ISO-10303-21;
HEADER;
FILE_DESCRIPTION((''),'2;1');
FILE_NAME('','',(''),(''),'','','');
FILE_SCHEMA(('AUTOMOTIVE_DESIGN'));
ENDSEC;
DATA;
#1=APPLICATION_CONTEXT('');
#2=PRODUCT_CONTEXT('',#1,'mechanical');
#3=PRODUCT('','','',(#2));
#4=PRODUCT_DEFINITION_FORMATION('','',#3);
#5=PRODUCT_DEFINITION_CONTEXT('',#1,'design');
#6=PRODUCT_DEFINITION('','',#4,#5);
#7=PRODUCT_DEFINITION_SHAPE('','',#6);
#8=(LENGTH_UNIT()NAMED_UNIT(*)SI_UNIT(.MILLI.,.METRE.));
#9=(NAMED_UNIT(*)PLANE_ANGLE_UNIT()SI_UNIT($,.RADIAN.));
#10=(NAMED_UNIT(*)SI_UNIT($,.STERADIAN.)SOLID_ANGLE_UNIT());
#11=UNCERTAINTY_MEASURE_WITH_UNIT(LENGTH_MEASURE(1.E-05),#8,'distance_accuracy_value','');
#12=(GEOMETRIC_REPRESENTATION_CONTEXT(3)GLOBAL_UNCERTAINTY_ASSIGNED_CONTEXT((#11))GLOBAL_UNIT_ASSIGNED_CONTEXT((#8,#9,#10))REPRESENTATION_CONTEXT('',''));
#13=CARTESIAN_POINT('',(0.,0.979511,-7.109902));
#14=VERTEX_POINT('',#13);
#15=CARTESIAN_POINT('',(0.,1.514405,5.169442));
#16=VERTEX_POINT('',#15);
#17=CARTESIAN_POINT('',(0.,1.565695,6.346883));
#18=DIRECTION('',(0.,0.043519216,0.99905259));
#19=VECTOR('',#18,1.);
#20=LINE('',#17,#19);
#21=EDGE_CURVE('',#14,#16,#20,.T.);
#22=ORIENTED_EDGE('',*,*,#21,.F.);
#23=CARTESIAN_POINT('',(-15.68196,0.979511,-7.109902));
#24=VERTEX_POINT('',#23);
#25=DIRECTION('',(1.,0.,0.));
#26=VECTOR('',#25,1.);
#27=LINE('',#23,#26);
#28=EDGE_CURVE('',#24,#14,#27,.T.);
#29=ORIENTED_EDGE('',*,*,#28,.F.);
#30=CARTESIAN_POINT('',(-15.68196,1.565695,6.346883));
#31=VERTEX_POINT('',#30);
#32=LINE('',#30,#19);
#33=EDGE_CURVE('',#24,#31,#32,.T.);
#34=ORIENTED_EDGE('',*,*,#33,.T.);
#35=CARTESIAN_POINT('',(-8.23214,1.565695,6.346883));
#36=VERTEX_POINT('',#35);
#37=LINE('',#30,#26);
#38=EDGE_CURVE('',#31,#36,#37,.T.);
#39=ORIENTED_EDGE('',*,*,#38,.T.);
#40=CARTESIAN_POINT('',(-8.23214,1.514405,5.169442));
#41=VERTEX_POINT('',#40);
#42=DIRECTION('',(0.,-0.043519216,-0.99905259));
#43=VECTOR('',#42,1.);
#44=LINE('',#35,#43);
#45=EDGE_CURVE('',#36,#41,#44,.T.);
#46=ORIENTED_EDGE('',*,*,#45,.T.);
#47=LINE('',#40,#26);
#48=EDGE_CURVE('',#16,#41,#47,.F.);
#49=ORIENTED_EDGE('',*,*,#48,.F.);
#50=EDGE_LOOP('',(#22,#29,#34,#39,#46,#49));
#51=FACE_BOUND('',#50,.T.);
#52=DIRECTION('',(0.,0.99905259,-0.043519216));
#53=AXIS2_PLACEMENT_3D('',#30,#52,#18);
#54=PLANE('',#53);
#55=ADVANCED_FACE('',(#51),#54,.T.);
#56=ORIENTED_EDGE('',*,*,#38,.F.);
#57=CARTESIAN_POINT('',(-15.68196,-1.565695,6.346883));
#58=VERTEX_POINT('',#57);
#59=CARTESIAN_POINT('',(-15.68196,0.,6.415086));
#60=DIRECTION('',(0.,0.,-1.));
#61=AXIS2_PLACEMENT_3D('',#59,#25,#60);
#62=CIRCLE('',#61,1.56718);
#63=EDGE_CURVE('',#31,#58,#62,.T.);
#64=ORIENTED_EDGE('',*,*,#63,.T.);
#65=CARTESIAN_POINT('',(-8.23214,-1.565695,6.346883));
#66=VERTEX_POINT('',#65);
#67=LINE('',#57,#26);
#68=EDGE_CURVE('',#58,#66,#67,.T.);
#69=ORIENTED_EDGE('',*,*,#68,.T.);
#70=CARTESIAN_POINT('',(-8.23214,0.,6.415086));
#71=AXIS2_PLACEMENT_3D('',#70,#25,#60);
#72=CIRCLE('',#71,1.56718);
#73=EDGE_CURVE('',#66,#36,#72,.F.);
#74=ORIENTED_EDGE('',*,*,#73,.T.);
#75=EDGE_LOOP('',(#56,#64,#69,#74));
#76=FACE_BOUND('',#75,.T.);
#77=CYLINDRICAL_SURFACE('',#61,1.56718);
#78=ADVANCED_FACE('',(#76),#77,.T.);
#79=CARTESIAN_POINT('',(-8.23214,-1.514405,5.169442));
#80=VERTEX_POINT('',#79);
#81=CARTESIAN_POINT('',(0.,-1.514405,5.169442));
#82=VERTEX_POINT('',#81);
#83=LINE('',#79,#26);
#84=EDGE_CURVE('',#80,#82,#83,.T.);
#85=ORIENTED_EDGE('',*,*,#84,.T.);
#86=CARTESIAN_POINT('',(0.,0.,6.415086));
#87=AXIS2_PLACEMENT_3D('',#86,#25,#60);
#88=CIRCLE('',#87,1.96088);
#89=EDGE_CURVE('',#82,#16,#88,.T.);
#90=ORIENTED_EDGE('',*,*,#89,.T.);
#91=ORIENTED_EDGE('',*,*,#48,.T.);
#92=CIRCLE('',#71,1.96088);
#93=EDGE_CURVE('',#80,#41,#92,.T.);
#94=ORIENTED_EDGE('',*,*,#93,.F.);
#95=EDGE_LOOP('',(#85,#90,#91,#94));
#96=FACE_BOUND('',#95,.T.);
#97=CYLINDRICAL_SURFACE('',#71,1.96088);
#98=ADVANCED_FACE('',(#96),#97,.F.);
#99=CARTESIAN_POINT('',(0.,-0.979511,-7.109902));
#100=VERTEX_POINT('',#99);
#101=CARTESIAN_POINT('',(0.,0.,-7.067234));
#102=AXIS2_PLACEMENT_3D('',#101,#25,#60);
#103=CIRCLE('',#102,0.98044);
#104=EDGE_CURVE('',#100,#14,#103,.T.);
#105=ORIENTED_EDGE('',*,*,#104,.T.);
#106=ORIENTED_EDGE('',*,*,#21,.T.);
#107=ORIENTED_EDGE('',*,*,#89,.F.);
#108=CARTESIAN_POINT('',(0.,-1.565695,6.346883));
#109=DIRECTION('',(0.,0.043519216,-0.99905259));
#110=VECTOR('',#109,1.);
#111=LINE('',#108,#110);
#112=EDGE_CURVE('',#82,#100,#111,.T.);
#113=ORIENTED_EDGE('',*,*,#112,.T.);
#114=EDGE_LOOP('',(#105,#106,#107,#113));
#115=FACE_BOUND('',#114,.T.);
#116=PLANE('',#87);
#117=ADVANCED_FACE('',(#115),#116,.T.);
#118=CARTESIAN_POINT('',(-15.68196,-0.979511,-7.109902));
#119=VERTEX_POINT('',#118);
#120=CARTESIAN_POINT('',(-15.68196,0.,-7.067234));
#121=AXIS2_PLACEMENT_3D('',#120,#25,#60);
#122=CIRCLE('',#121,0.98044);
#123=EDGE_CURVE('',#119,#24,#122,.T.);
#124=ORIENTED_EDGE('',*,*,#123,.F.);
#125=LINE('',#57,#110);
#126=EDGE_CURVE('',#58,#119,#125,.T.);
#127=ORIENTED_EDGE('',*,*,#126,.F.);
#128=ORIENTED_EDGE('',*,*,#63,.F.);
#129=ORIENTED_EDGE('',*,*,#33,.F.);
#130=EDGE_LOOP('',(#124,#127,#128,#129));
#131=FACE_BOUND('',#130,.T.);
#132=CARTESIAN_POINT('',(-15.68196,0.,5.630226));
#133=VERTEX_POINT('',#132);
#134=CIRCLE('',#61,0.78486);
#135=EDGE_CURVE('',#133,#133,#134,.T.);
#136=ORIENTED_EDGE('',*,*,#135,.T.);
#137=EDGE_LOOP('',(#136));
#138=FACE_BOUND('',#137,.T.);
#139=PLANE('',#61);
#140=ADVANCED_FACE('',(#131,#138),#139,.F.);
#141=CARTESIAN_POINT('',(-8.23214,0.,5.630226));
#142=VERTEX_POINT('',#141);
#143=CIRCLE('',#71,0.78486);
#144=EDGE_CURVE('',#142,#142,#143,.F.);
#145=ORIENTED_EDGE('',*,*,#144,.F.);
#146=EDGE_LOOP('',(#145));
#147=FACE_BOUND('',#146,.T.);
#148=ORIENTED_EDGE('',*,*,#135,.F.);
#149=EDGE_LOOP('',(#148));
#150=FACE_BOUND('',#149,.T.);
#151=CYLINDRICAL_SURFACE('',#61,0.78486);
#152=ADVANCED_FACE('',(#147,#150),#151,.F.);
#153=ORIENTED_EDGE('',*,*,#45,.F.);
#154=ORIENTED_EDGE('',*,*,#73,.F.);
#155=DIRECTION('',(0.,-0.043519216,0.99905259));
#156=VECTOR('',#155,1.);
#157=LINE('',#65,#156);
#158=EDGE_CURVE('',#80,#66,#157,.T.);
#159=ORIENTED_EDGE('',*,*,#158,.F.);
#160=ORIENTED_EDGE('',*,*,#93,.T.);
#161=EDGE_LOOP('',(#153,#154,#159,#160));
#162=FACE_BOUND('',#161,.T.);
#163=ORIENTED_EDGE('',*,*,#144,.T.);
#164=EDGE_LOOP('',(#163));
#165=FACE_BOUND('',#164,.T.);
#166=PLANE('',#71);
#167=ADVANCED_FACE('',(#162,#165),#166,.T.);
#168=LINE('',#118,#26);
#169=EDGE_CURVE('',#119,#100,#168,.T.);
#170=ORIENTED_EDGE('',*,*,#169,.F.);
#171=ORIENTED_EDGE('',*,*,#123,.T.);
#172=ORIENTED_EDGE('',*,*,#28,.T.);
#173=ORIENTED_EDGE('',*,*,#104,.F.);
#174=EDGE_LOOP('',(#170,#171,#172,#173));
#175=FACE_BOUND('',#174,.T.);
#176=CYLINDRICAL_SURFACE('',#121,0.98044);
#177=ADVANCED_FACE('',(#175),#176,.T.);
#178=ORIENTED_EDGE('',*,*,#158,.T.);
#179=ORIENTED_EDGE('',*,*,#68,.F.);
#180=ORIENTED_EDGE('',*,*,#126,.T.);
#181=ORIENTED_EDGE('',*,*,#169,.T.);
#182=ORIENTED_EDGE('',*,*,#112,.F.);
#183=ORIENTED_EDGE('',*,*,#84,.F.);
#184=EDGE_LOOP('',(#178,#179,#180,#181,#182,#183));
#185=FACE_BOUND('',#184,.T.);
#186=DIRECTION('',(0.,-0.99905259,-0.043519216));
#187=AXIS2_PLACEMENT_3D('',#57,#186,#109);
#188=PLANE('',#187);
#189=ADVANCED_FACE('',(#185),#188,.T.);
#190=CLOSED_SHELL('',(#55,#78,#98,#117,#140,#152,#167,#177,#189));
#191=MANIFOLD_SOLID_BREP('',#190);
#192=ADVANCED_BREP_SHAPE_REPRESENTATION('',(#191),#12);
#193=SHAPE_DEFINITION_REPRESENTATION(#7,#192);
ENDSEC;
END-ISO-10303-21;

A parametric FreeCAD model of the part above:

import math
import FreeCAD as App
import Part
import Sketcher
Q = App.Units.Quantity

doc = App.newDocument("Part")
body = doc.addObject("PartDesign::Body", "Body")

sketch1 = doc.addObject("Sketcher::SketchObject", "Sketch")
body.addObject(sketch1)
sketch1.AttachmentSupport = (doc.YZ_Plane, [""])
sketch1.MapMode = "FlatFace"
sketch1.addGeometry(Part.LineSegment(App.Vector(-1.6, 6.3, 0), App.Vector(-1, -7.1, 0)), False)
sketch1.addGeometry(Part.ArcOfCircle(Part.Circle(App.Vector(0, -7.1, 0), App.Vector(0, 0, 1), 1), math.radians(-178), math.radians(-2)), False)
sketch1.addGeometry(Part.LineSegment(App.Vector(1, -7.1, 0), App.Vector(1.6, 6.3, 0)), False)
sketch1.addGeometry(Part.ArcOfCircle(Part.Circle(App.Vector(0, 6.4, 0), App.Vector(0, 0, 1), 1.6), math.radians(-2), math.radians(182)), False)
sketch1.addGeometry(Part.Circle(App.Vector(0, 6.4, 0), App.Vector(0, 0, 1), 0.8), False)
sketch1.addConstraint(Sketcher.Constraint("Tangent", 0, 2, 1, 1))
sketch1.addConstraint(Sketcher.Constraint("Tangent", 1, 2, 2, 1))
sketch1.addConstraint(Sketcher.Constraint("Tangent", 2, 2, 3, 1))
sketch1.addConstraint(Sketcher.Constraint("Tangent", 3, 2, 0, 1))
sketch1.addConstraint(Sketcher.Constraint("Coincident", 4, 3, 3, 3))
sketch1.addConstraint(Sketcher.Constraint("Symmetric", 0, 2, 1, 2, -2))
sketch1.addConstraint(Sketcher.Constraint("Diameter", 4, Q("1.56972 mm")))
sketch1.addConstraint(Sketcher.Constraint("Radius", 1, Q("0.98044 mm")))
sketch1.addConstraint(Sketcher.Constraint("Radius", 3, Q("1.56718 mm")))
sketch1.addConstraint(Sketcher.Constraint("DistanceY", 1, 3, 3, 3, Q("13.48232 mm")))
sketch1.addConstraint(Sketcher.Constraint("DistanceY", 1, 3, -1, 1, Q("7.067234 mm")))
pad1 = doc.addObject("PartDesign::Pad", "Pad")
body.addObject(pad1)
pad1.Profile = sketch1
pad1.Length = 15.68196
pad1.Reversed = True

sketch2 = doc.addObject("Sketcher::SketchObject", "Sketch001")
body.addObject(sketch2)
sketch2.AttachmentSupport = (doc.YZ_Plane, [""])
sketch2.MapMode = "FlatFace"
sketch2.addGeometry(Part.Circle(App.Vector(0, 6.4, 0), App.Vector(0, 0, 1), 2), False)
sketch2.addConstraint(Sketcher.Constraint("PointOnObject", 0, 3, -2))
sketch2.addConstraint(Sketcher.Constraint("Diameter", 0, Q("3.92176 mm")))
sketch2.addConstraint(Sketcher.Constraint("DistanceY", -1, 1, 0, 3, Q("6.415086 mm")))
pocket1 = doc.addObject("PartDesign::Pocket", "Pocket")
body.addObject(pocket1)
pocket1.Profile = sketch2
pocket1.Length = 8.23214

doc.recompute()
